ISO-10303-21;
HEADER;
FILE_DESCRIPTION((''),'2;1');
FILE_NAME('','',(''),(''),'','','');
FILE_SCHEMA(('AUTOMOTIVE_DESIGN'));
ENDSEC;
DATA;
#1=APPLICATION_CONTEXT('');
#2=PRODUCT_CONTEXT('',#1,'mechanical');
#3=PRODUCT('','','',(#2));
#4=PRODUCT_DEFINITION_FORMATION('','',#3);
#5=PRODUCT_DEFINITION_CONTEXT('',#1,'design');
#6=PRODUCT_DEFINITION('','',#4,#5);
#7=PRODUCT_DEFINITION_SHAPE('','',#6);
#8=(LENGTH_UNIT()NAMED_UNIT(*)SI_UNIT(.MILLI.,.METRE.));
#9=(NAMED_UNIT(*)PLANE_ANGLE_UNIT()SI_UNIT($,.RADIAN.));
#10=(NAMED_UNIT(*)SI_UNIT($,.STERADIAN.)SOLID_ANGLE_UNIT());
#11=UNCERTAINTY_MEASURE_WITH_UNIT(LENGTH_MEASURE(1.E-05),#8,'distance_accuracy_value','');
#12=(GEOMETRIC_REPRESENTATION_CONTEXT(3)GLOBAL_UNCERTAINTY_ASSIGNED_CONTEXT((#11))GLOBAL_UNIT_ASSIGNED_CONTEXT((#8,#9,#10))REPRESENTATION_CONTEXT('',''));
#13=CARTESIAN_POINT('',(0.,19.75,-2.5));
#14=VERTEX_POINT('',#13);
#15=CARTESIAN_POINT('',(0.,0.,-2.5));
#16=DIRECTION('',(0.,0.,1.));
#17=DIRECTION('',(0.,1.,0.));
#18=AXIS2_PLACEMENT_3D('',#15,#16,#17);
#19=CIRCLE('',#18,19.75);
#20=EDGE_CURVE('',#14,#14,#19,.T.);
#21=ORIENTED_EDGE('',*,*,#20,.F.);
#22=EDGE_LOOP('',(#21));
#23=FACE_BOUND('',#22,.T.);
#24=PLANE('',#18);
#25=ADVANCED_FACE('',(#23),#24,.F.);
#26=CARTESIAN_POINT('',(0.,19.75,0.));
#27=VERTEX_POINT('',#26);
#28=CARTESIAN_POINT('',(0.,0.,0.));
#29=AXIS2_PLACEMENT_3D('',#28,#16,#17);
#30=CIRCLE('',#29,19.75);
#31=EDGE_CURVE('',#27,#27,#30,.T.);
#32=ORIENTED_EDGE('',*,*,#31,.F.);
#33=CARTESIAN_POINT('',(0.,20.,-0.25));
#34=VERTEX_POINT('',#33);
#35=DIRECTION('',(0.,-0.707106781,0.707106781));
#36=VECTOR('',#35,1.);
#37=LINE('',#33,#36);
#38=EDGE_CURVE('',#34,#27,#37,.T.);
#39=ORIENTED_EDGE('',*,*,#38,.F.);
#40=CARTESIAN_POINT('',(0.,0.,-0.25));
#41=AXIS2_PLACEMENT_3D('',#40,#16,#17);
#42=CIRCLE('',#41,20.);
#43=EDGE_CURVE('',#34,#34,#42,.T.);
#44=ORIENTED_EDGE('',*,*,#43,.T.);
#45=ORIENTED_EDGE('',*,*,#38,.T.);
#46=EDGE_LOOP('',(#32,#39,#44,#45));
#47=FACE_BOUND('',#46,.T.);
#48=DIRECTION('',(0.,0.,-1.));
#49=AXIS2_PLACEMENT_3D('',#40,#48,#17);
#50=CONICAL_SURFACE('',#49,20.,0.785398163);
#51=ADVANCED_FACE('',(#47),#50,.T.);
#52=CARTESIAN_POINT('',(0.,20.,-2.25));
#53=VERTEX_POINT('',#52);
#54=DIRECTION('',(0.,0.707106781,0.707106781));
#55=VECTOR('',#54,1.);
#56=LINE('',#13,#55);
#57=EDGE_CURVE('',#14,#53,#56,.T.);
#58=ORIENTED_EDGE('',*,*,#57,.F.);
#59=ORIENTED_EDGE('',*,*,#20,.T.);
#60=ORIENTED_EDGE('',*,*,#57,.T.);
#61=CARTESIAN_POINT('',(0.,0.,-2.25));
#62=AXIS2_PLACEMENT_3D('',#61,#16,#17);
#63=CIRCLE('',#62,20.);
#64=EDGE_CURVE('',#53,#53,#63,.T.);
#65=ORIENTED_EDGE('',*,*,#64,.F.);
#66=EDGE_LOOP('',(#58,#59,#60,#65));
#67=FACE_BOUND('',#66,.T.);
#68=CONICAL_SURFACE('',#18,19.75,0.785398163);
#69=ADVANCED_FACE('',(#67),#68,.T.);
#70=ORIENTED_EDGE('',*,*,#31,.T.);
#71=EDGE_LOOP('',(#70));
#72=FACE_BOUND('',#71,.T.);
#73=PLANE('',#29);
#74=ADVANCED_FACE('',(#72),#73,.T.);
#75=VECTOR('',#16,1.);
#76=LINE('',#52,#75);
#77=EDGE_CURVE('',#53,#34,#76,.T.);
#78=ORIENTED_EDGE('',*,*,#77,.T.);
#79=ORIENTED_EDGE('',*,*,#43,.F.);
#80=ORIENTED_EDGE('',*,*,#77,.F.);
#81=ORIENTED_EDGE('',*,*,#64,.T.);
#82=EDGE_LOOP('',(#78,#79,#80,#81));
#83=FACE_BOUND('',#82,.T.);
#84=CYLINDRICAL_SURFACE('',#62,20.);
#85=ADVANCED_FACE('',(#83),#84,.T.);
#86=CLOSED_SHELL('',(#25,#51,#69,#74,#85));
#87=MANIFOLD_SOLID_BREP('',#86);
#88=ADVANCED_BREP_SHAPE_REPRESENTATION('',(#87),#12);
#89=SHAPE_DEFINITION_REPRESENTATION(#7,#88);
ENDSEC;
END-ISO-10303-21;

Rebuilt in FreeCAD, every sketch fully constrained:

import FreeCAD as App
import Part
import Sketcher

doc = App.newDocument("Part")
body = doc.addObject("PartDesign::Body", "Body")

# Sketch on YZ plane
sketch1 = doc.addObject("Sketcher::SketchObject", "Sketch")
body.addObject(sketch1)
sketch1.AttachmentSupport = (doc.YZ_Plane, [""])
sketch1.MapMode = "FlatFace"
sketch1.addGeometry([
    Part.LineSegment(App.Vector(0, 0, 0), App.Vector(0, -2.5, 0)),  # 0
    Part.LineSegment(App.Vector(0, -2.5, 0), App.Vector(19.75, -2.5, 0)),  # 1
    Part.LineSegment(App.Vector(19.75, -2.5, 0), App.Vector(20, -2.25, 0)),  # 2
    Part.LineSegment(App.Vector(20, -2.25, 0), App.Vector(20, -0.25, 0)),  # 3
    Part.LineSegment(App.Vector(20, -0.25, 0), App.Vector(19.75, 0, 0)),  # 4
    Part.LineSegment(App.Vector(19.75, 0, 0), App.Vector(0, 0, 0)),  # 5
], False)
sketch1.addConstraint([
    Sketcher.Constraint("Coincident", 0, 2, 1, 1),
    Sketcher.Constraint("Coincident", 1, 2, 2, 1),
    Sketcher.Constraint("Coincident", 2, 2, 3, 1),
    Sketcher.Constraint("Coincident", 3, 2, 4, 1),
    Sketcher.Constraint("Coincident", 4, 2, 5, 1),
    Sketcher.Constraint("Coincident", 5, 2, 0, 1),
    Sketcher.Constraint("Vertical", 0),
    Sketcher.Constraint("Horizontal", 1),
    Sketcher.Constraint("Vertical", 3),
    Sketcher.Constraint("Horizontal", 5),
    Sketcher.Constraint("Coincident", 5, 2, -1, 1),
    Sketcher.Constraint("Perpendicular", 2, 4),
    Sketcher.Constraint("Vertical", 1, 2, 4, 2),
    Sketcher.Constraint("Equal", 2, 4),
    Sketcher.Constraint("DistanceY", 3, 1, 3, 2, 2.0),
    Sketcher.Constraint("DistanceY", 0, 2, 0, 1, 2.5),
    Sketcher.Constraint("DistanceX", -1, 1, 2, 2, 20.0),
])
revolution = doc.addObject("PartDesign::Revolution", "Revolution")
body.addObject(revolution)
revolution.Profile = sketch1
revolution.ReferenceAxis = (sketch1, ["V_Axis"])
revolution.Angle = 360

doc.recompute()
